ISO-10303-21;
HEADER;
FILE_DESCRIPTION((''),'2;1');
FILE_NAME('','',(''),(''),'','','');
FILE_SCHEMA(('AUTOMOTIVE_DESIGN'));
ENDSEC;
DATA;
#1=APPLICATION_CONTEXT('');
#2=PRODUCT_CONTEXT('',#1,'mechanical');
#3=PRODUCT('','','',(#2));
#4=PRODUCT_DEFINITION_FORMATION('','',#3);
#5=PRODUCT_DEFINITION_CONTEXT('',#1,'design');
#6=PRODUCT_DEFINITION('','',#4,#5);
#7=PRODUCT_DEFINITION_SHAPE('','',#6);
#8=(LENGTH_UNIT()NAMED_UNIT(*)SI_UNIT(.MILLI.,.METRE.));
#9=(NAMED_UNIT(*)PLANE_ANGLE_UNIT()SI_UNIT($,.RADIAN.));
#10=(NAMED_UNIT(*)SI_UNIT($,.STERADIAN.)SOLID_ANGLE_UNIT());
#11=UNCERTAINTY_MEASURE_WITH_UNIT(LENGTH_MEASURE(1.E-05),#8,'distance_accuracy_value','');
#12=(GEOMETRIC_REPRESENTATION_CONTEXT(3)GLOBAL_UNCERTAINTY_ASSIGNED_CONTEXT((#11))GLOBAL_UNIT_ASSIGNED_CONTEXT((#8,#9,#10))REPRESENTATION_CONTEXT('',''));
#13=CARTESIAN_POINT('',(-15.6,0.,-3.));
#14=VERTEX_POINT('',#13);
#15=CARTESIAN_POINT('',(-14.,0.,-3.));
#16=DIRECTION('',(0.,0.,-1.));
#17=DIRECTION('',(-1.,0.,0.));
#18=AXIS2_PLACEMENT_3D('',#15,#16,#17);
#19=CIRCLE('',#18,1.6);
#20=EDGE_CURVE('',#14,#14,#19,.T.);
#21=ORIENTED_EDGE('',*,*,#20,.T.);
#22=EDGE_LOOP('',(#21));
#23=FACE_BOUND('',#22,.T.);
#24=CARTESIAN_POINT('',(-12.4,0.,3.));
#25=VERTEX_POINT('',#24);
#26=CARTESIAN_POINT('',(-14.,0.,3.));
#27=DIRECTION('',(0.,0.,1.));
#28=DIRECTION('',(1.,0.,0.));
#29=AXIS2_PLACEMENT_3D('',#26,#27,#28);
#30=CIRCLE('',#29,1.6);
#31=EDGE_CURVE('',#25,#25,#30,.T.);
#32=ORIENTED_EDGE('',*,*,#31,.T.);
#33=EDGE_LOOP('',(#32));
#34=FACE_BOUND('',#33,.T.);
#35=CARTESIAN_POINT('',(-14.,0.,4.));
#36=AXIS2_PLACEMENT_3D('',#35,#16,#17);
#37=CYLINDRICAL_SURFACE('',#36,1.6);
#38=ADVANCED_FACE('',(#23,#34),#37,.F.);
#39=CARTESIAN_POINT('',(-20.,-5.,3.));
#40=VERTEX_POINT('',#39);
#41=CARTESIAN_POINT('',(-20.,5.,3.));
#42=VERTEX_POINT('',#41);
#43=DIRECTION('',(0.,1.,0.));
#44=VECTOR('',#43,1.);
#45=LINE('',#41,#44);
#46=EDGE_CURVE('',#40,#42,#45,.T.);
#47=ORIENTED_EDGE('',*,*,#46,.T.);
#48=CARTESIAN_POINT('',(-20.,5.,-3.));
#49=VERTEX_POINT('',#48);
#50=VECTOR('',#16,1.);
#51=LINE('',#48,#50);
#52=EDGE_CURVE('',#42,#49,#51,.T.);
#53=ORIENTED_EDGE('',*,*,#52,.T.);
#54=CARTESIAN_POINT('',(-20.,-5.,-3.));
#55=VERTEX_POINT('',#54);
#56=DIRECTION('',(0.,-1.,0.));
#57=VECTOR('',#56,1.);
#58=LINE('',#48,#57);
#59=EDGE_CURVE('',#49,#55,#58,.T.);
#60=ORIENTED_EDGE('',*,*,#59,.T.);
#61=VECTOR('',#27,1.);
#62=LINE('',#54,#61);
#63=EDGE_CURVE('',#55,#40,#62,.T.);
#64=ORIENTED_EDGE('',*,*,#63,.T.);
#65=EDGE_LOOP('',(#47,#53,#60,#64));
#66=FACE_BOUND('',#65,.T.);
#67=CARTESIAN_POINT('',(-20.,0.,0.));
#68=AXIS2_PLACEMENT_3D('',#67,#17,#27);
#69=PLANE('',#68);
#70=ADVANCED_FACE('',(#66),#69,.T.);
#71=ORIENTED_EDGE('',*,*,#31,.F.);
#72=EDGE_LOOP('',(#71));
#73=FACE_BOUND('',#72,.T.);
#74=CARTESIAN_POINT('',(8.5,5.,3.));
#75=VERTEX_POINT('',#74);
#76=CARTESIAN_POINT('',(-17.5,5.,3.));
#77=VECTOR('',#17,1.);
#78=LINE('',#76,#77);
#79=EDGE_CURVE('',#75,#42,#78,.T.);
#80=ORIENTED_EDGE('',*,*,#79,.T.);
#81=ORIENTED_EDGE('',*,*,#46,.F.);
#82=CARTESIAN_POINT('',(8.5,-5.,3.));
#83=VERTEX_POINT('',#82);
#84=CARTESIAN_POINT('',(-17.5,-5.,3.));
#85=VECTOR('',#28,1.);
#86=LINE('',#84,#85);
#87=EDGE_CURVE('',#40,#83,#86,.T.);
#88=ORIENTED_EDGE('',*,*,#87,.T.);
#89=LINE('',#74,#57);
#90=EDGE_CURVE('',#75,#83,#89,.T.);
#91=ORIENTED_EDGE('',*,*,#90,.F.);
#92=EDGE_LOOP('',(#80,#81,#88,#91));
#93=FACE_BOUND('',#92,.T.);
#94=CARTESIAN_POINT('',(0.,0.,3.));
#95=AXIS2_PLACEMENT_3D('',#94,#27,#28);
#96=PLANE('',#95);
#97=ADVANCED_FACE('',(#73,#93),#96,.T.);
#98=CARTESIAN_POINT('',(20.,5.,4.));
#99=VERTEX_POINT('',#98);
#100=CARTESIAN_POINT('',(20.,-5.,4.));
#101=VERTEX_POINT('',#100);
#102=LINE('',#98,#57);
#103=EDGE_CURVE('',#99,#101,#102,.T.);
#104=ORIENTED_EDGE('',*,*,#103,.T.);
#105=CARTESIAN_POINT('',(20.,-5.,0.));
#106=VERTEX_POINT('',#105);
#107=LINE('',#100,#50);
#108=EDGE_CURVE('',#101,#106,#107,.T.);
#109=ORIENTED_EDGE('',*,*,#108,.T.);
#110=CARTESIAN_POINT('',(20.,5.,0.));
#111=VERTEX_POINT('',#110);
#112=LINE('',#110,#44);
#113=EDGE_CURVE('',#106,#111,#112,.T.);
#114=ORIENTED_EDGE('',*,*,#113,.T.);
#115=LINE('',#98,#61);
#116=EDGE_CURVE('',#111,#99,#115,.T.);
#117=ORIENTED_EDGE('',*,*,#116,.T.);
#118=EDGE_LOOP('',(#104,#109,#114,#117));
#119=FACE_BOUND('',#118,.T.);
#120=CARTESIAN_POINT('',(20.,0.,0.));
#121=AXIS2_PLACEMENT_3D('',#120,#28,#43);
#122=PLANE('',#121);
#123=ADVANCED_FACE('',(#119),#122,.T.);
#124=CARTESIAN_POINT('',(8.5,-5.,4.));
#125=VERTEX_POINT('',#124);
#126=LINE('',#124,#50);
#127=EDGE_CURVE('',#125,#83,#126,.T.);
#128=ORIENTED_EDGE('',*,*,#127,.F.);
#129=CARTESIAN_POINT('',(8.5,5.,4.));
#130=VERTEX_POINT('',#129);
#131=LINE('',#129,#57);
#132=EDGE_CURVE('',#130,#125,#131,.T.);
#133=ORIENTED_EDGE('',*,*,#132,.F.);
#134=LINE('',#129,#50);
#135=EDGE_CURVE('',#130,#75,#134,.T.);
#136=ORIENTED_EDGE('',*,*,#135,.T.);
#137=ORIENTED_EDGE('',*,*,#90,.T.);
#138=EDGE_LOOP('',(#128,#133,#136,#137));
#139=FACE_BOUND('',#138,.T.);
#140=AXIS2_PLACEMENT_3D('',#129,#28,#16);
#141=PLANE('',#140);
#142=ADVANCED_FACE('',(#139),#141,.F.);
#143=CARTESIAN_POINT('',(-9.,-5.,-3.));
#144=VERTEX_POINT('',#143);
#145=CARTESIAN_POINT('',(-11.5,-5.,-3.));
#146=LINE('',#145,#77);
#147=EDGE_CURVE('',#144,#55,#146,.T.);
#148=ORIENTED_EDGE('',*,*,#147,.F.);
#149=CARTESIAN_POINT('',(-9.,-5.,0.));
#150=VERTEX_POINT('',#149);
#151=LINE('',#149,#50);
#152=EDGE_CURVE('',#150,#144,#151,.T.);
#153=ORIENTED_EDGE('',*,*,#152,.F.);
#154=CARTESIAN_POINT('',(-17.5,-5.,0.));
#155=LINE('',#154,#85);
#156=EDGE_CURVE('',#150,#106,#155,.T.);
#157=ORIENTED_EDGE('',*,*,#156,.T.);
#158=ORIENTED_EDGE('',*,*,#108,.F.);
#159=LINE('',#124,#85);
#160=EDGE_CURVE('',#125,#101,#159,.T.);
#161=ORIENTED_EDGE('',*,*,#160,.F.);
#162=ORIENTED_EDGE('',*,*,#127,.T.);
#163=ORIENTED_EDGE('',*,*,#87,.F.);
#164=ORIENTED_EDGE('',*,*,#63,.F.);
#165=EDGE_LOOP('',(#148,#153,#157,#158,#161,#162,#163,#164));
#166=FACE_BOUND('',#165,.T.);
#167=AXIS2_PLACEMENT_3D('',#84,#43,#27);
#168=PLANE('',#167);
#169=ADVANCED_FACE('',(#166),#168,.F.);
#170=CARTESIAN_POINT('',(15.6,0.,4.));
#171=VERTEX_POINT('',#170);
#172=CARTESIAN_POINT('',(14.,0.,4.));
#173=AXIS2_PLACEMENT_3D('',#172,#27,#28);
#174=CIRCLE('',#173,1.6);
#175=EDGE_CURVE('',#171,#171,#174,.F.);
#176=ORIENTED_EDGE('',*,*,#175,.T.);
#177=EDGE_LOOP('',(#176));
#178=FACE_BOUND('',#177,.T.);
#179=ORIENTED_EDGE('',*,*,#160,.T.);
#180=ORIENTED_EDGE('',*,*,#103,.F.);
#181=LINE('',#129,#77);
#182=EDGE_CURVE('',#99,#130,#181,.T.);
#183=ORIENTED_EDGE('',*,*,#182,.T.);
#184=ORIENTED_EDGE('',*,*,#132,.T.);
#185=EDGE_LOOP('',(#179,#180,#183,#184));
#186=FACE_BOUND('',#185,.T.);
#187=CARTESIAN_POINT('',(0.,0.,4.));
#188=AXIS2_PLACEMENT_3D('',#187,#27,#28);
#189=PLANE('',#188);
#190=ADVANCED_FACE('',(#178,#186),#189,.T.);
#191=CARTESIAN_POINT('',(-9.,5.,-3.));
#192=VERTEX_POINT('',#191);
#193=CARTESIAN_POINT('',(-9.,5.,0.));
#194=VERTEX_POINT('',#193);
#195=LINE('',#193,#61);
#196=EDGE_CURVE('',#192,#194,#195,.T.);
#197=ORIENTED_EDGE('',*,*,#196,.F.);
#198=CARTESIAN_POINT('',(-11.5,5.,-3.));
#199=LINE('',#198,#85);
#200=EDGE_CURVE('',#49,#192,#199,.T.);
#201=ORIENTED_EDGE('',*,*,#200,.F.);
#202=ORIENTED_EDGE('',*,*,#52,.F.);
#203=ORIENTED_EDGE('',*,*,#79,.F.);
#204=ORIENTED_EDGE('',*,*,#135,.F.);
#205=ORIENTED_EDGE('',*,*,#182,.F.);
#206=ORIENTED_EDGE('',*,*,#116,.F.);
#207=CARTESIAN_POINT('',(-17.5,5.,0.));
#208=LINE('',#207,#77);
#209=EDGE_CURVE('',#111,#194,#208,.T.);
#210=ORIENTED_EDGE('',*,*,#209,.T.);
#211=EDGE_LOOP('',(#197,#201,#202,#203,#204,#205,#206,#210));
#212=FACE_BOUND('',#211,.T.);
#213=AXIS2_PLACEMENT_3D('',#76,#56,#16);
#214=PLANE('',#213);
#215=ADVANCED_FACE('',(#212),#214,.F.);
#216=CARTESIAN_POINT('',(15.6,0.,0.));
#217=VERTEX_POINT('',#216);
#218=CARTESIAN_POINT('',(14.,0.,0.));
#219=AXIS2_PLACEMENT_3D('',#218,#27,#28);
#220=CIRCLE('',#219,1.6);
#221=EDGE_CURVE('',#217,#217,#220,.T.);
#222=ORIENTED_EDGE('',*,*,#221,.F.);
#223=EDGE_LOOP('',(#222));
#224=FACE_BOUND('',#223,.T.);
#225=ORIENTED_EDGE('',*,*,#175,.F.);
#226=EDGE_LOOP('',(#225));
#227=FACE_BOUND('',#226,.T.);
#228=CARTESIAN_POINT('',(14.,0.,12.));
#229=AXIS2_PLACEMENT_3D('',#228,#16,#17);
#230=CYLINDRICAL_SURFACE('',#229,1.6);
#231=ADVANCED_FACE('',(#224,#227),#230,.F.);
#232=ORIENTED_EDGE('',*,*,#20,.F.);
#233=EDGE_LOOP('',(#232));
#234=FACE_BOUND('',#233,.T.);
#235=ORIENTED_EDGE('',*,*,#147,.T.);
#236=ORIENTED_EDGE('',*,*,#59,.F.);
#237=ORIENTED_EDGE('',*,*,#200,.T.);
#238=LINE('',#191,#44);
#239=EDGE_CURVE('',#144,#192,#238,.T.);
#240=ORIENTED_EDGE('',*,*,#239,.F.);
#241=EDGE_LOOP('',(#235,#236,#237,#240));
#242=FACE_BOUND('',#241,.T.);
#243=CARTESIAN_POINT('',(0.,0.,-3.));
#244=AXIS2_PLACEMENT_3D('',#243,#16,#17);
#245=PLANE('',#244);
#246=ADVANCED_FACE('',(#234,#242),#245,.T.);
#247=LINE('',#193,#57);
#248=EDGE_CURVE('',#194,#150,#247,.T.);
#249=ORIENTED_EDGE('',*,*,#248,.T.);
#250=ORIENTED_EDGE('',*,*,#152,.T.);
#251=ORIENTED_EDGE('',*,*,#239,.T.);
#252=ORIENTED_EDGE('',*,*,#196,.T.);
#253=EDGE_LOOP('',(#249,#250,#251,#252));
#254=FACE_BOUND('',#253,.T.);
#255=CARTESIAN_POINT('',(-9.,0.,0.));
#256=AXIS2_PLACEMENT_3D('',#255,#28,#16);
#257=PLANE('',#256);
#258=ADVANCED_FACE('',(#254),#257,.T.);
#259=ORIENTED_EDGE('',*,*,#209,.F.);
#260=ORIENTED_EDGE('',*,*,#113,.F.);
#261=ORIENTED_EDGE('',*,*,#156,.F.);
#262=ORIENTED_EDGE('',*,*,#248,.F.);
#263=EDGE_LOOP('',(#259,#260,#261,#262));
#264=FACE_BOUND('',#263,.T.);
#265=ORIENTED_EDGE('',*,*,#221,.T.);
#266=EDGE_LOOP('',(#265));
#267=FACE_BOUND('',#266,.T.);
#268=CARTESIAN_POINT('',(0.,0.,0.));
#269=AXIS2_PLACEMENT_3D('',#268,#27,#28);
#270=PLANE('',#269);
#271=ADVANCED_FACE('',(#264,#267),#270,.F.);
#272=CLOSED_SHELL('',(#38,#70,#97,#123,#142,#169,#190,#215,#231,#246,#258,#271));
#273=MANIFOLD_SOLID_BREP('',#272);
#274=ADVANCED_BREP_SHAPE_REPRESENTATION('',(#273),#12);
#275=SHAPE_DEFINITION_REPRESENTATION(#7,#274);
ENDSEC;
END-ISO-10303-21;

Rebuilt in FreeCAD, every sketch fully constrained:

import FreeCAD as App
import Part
import Sketcher


def add_polygon(sketch, points):
    """Adds a closed chain of lines whose ends are joined by coincident constraints."""
    first, n = sketch.GeometryCount, len(points)
    for a, b in zip(points, points[1:] + points[:1]):
        sketch.addGeometry(Part.LineSegment(App.Vector(*a, 0), App.Vector(*b, 0)), False)
    for i in range(n):
        sketch.addConstraint(Sketcher.Constraint("Coincident", first + i, 2, first + (i + 1) % n, 1))

doc = App.newDocument("Part")
body = doc.addObject("PartDesign::Body", "Body")

sketch1 = doc.addObject("Sketcher::SketchObject", "Sketch")
body.addObject(sketch1)
sketch1.AttachmentSupport = (doc.XY_Plane, [""])
sketch1.MapMode = "FlatFace"
add_polygon(sketch1, [(-18, 5), (-18, -5), (18, -5), (18, 5)])
sketch1.addConstraint(Sketcher.Constraint("Vertical", 0))
sketch1.addConstraint(Sketcher.Constraint("Horizontal", 1))
sketch1.addConstraint(Sketcher.Constraint("Vertical", 2))
sketch1.addConstraint(Sketcher.Constraint("Horizontal", 3))
sketch1.addConstraint(Sketcher.Constraint("Symmetric", 0, 2, 2, 2, -1, 1))
sketch1.addConstraint(Sketcher.Constraint("DistanceX", 1, 1, 1, 2, 35.0))
sketch1.addConstraint(Sketcher.Constraint("DistanceY", 0, 2, 0, 1, 10.0))
pad1 = doc.addObject("PartDesign::Pad", "Pad")
body.addObject(pad1)
pad1.Profile = sketch1
pad1.Length = 3

sketch2 = doc.addObject("Sketcher::SketchObject", "Sketch001")
body.addObject(sketch2)
sketch2.AttachmentSupport = (doc.XY_Plane, [""])
sketch2.MapMode = "FlatFace"
sketch2.AttachmentOffset = App.Placement(App.Vector(0, 0, 3), App.Rotation())
add_polygon(sketch2, [(8, 5), (8, -5), (18, -5), (18, 5)])
sketch2.addConstraint(Sketcher.Constraint("Vertical", 0))
sketch2.addConstraint(Sketcher.Constraint("Horizontal", 1))
sketch2.addConstraint(Sketcher.Constraint("Vertical", 2))
sketch2.addConstraint(Sketcher.Constraint("Horizontal", 3))
sketch2.addConstraint(Sketcher.Constraint("DistanceX", 1, 1, 1, 2, 9.0))
sketch2.addConstraint(Sketcher.Constraint("DistanceY", 0, 2, 0, 1, 10.0))
sketch2.addConstraint(Sketcher.Constraint("DistanceY", 0, 2, -1, 1, 5.0))
sketch2.addConstraint(Sketcher.Constraint("DistanceX", -1, 1, 0, 2, 8.5))
pad2 = doc.addObject("PartDesign::Pad", "Pad001")
body.addObject(pad2)
pad2.Profile = sketch2
pad2.Length = 1

sketch3 = doc.addObject("Sketcher::SketchObject", "Sketch002")
body.addObject(sketch3)
sketch3.AttachmentSupport = (doc.XY_Plane, [""])
sketch3.MapMode = "FlatFace"
sketch3.AttachmentOffset = App.Placement(App.Vector(0, 0, 4), App.Rotation())
sketch3.addGeometry(Part.Circle(App.Vector(14, 0, 0), App.Vector(0, 0, 1), 1), False)
sketch3.addConstraint(Sketcher.Constraint("PointOnObject", 0, 3, -1))
sketch3.addConstraint(Sketcher.Constraint("Diameter", 0, 2.0))
sketch3.addConstraint(Sketcher.Constraint("DistanceX", -1, 1, 0, 3, 14.0))
pad3 = doc.addObject("PartDesign::Pad", "Pad002")
body.addObject(pad3)
pad3.Profile = sketch3
pad3.Length = 8

sketch4 = doc.addObject("Sketcher::SketchObject", "Sketch003")
body.addObject(sketch4)
sketch4.AttachmentSupport = (doc.XY_Plane, [""])
sketch4.MapMode = "FlatFace"
add_polygon(sketch4, [(-12, 5), (-12, -5), (-18, -5), (-18, 5)])
sketch4.addConstraint(Sketcher.Constraint("Vertical", 0))
sketch4.addConstraint(Sketcher.Constraint("Horizontal", 1))
sketch4.addConstraint(Sketcher.Constraint("Vertical", 2))
sketch4.addConstraint(Sketcher.Constraint("Horizontal", 3))
sketch4.addConstraint(Sketcher.Constraint("DistanceX", 1, 2, 1, 1, 6.0))
sketch4.addConstraint(Sketcher.Constraint("DistanceY", 0, 2, 0, 1, 10.0))
sketch4.addConstraint(Sketcher.Constraint("DistanceY", 0, 2, -1, 1, 5.0))
sketch4.addConstraint(Sketcher.Constraint("DistanceX", 0, 2, -1, 1, 11.5))
pad4 = doc.addObject("PartDesign::Pad", "Pad003")
body.addObject(pad4)
pad4.Profile = sketch4
pad4.Length = 3
pad4.Reversed = True

sketch5 = doc.addObject("Sketcher::SketchObject", "Sketch004")
body.addObject(sketch5)
sketch5.AttachmentSupport = (doc.XY_Plane, [""])
sketch5.MapMode = "FlatFace"
sketch5.AttachmentOffset = App.Placement(App.Vector(0, 0, -3), App.Rotation())
sketch5.addGeometry(Part.Circle(App.Vector(-14, 0, 0), App.Vector(0, 0, 1), 1.5), False)
sketch5.addConstraint(Sketcher.Constraint("PointOnObject", 0, 3, -1))
sketch5.addConstraint(Sketcher.Constraint("Diameter", 0, 3.0))
sketch5.addConstraint(Sketcher.Constraint("DistanceX", 0, 3, -1, 1, 14.0))
pocket1 = doc.addObject("PartDesign::Pocket", "Pocket")
body.addObject(pocket1)
pocket1.Profile = sketch5
pocket1.Length = 6
pocket1.Reversed = True

sketch6 = doc.addObject("Sketcher::SketchObject", "Sketch005")
body.addObject(sketch6)
sketch6.AttachmentSupport = (doc.YZ_Plane, [""])
sketch6.MapMode = "FlatFace"
sketch6.AttachmentOffset = App.Placement(App.Vector(0, 0, -17.5), App.Rotation())
add_polygon(sketch6, [(5, -3), (-5, -3), (-5, 3), (5, 3)])
sketch6.addConstraint(Sketcher.Constraint("Horizontal", 0))
sketch6.addConstraint(Sketcher.Constraint("Vertical", 1))
sketch6.addConstraint(Sketcher.Constraint("Horizontal", 2))
sketch6.addConstraint(Sketcher.Constraint("Vertical", 3))
sketch6.addConstraint(Sketcher.Constraint("Symmetric", 0, 2, 2, 2, -1, 1))
sketch6.addConstraint(Sketcher.Constraint("DistanceX", 0, 2, 0, 1, 10.0))
sketch6.addConstraint(Sketcher.Constraint("DistanceY", 1, 1, 1, 2, 6.0))
pad5 = doc.addObject("PartDesign::Pad", "Pad004")
body.addObject(pad5)
pad5.Profile = sketch6
pad5.Length = 5
pad5.Reversed = True

sketch7 = doc.addObject("Sketcher::SketchObject", "Sketch006")
body.addObject(sketch7)
sketch7.AttachmentSupport = (doc.XY_Plane, [""])
sketch7.MapMode = "FlatFace"
sketch7.AttachmentOffset = App.Placement(App.Vector(0, 0, 4), App.Rotation())
sketch7.addGeometry(Part.Circle(App.Vector(14, 0, 0), App.Vector(0, 0, 1), 1.6), False)
sketch7.addConstraint(Sketcher.Constraint("PointOnObject", 0, 3, -1))
sketch7.addConstraint(Sketcher.Constraint("Diameter", 0, 3.2))
sketch7.addConstraint(Sketcher.Constraint("DistanceX", -1, 1, 0, 3, 14.0))
pocket2 = doc.addObject("PartDesign::Pocket", "Pocket001")
body.addObject(pocket2)
pocket2.Profile = sketch7
pocket2.Type = "ThroughAll"
pocket2.Midplane = True

sketch8 = doc.addObject("Sketcher::SketchObject", "Sketch007")
body.addObject(sketch8)
sketch8.AttachmentSupport = (doc.YZ_Plane, [""])
sketch8.MapMode = "FlatFace"
sketch8.AttachmentOffset = App.Placement(App.Vector(0, 0, 17.5), App.Rotation())
add_polygon(sketch8, [(5, 4), (-5, 4), (-5, 0), (5, 0)])
sketch8.addConstraint(Sketcher.Constraint("Horizontal", 0))
sketch8.addConstraint(Sketcher.Constraint("Vertical", 1))
sketch8.addConstraint(Sketcher.Constraint("Horizontal", 2))
sketch8.addConstraint(Sketcher.Constraint("Vertical", 3))
sketch8.addConstraint(Sketcher.Constraint("Symmetric", 1, 2, 2, 2, -1, 1))
sketch8.addConstraint(Sketcher.Constraint("DistanceX", 0, 2, 0, 1, 10.0))
sketch8.addConstraint(Sketcher.Constraint("DistanceY", 1, 2, 1, 1, 4.0))
pad6 = doc.addObject("PartDesign::Pad", "Pad005")
body.addObject(pad6)
pad6.Profile = sketch8
pad6.Length = 2.5

sketch9 = doc.addObject("Sketcher::SketchObject", "Sketch008")
body.addObject(sketch9)
sketch9.AttachmentSupport = (doc.XY_Plane, [""])
sketch9.MapMode = "FlatFace"
sketch9.AttachmentOffset = App.Placement(App.Vector(0, 0, -3), App.Rotation())
sketch9.addGeometry(Part.Circle(App.Vector(-14, 0, 0), App.Vector(0, 0, 1), 1.6), False)
sketch9.addConstraint(Sketcher.Constraint("PointOnObject", 0, 3, -1))
sketch9.addConstraint(Sketcher.Constraint("Diameter", 0, 3.2))
sketch9.addConstraint(Sketcher.Constraint("DistanceX", 0, 3, -1, 1, 14.0))
pocket3 = doc.addObject("PartDesign::Pocket", "Pocket002")
body.addObject(pocket3)
pocket3.Profile = sketch9
pocket3.Length = 7
pocket3.Reversed = True

sketch10 = doc.addObject("Sketcher::SketchObject", "Sketch009")
body.addObject(sketch10)
sketch10.AttachmentSupport = (doc.YZ_Plane, [""])
sketch10.MapMode = "FlatFace"
sketch10.AttachmentOffset = App.Placement(App.Vector(0, 0, -11.5), App.Rotation())
add_polygon(sketch10, [(5, 0), (-5, 0), (-5, -3), (5, -3)])
sketch10.addConstraint(Sketcher.Constraint("Horizontal", 0))
sketch10.addConstraint(Sketcher.Constraint("Vertical", 1))
sketch10.addConstraint(Sketcher.Constraint("Horizontal", 2))
sketch10.addConstraint(Sketcher.Constraint("Vertical", 3))
sketch10.addConstraint(Sketcher.Constraint("Symmetric", 0, 2, 3, 2, -1, 1))
sketch10.addConstraint(Sketcher.Constraint("DistanceX", 0, 2, 0, 1, 10.0))
sketch10.addConstraint(Sketcher.Constraint("DistanceY", 1, 2, 1, 1, 3.0))
pad7 = doc.addObject("PartDesign::Pad", "Pad006")
body.addObject(pad7)
pad7.Profile = sketch10
pad7.Length = 2.5

sketch11 = doc.addObject("Sketcher::SketchObject", "Sketch010")
body.addObject(sketch11)
sketch11.AttachmentSupport = (doc.YZ_Plane, [""])
sketch11.MapMode = "FlatFace"
sketch11.AttachmentOffset = App.Placement(App.Vector(0, 0, -22.5), App.Rotation())
add_polygon(sketch11, [(5, -3), (-5, -3), (-5, 3), (5, 3)])
sketch11.addConstraint(Sketcher.Constraint("Horizontal", 0))
sketch11.addConstraint(Sketcher.Constraint("Vertical", 1))
sketch11.addConstraint(Sketcher.Constraint("Horizontal", 2))
sketch11.addConstraint(Sketcher.Constraint("Vertical", 3))
sketch11.addConstraint(Sketcher.Constraint("Symmetric", 0, 2, 2, 2, -1, 1))
sketch11.addConstraint(Sketcher.Constraint("DistanceX", 0, 2, 0, 1, 10.0))
sketch11.addConstraint(Sketcher.Constraint("DistanceY", 1, 1, 1, 2, 6.0))
pocket4 = doc.addObject("PartDesign::Pocket", "Pocket003")
body.addObject(pocket4)
pocket4.Profile = sketch11
pocket4.Length = 2.5
pocket4.Reversed = True

doc.recompute()
